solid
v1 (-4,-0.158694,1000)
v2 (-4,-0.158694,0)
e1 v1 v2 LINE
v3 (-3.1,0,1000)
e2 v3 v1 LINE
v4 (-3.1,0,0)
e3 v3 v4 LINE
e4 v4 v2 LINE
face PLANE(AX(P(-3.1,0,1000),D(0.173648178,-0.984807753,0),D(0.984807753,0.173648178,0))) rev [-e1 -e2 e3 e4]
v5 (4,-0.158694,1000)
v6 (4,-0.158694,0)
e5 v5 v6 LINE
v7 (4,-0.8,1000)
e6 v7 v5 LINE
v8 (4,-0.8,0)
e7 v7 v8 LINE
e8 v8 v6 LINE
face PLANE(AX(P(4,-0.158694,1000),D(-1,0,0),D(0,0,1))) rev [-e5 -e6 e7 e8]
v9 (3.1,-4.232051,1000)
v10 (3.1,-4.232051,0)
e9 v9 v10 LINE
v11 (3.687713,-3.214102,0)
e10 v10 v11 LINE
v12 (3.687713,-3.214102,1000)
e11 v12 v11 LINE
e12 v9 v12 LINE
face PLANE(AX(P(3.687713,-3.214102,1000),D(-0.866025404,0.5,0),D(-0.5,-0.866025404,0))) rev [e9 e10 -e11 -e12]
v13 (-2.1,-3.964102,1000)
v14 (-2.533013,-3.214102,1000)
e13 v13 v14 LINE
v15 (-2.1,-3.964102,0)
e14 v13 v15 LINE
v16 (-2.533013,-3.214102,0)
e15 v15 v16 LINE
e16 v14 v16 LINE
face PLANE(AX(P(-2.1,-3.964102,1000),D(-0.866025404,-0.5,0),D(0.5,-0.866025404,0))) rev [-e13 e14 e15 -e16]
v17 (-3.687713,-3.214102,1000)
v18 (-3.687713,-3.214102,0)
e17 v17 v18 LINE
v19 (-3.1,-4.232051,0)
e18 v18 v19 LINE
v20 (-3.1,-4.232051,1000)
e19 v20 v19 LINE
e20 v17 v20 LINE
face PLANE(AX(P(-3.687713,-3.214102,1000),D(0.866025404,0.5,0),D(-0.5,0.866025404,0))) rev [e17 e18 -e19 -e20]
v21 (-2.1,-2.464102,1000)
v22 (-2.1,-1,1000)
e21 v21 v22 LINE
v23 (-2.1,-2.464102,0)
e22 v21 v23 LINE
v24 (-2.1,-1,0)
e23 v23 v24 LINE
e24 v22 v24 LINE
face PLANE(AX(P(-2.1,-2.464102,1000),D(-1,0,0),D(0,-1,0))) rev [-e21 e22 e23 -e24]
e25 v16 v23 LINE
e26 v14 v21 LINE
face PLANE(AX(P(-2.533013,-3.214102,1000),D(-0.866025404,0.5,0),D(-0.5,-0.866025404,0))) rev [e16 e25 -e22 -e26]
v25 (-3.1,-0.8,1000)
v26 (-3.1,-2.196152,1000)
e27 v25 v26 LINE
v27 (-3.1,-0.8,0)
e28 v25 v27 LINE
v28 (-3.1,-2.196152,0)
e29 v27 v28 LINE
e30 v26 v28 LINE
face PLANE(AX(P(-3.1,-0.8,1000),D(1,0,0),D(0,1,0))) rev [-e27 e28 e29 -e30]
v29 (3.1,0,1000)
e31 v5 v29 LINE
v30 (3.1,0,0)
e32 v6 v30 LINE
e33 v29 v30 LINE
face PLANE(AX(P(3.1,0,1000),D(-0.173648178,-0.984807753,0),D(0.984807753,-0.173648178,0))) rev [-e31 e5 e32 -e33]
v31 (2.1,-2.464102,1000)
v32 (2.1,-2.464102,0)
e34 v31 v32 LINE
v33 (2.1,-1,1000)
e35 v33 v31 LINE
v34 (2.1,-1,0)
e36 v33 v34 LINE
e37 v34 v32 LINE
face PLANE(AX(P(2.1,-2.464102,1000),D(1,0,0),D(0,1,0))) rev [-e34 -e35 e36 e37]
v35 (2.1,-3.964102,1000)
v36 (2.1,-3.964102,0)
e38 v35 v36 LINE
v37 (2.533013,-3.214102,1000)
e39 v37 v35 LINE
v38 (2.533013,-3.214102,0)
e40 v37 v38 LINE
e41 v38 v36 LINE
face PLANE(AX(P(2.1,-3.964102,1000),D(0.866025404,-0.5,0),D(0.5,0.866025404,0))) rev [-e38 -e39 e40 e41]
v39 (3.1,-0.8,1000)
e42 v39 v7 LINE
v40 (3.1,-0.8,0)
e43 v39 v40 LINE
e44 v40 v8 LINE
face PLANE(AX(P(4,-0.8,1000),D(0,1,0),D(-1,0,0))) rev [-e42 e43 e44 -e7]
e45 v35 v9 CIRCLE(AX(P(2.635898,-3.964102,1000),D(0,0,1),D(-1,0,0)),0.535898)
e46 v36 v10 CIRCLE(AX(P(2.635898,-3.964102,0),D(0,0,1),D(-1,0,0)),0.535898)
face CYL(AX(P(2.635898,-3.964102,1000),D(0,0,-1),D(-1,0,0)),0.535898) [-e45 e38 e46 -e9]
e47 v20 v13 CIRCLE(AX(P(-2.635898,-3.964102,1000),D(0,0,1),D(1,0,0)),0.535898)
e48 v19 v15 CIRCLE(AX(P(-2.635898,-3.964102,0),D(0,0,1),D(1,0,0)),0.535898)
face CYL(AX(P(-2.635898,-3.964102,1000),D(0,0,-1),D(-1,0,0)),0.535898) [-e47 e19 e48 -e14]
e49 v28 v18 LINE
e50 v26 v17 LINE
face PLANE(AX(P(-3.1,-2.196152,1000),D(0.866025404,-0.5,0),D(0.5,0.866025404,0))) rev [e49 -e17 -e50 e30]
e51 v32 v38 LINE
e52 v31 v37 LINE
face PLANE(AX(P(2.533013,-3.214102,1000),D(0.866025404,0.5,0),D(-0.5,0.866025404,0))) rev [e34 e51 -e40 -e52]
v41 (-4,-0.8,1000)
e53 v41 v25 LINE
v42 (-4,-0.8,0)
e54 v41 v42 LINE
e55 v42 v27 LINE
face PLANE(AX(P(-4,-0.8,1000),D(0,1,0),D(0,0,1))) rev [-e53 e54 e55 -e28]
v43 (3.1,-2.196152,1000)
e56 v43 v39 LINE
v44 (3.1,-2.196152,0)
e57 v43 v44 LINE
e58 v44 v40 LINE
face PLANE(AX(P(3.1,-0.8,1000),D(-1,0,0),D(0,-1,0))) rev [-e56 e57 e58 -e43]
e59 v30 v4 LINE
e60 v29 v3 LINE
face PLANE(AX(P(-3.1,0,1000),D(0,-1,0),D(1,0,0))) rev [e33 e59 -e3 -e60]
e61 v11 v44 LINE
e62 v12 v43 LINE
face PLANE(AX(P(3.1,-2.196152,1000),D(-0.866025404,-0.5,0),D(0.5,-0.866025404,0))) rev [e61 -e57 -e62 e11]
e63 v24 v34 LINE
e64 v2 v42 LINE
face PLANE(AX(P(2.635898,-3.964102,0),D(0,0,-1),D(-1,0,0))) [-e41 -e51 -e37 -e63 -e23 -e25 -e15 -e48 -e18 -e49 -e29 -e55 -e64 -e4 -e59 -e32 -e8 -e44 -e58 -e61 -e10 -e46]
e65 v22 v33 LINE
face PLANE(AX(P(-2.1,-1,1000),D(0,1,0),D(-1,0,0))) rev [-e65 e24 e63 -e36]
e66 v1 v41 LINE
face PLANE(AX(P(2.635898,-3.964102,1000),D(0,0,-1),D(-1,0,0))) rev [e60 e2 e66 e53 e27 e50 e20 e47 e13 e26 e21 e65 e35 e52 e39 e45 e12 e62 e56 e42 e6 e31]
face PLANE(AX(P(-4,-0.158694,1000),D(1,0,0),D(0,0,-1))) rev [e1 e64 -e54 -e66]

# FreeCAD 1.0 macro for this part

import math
import FreeCAD as App
import Part
import Sketcher
Q = App.Units.Quantity

doc = App.newDocument("Part")
body = doc.addObject("PartDesign::Body", "Body")

sketch1 = body.newObject("Sketcher::SketchObject", "Sketch")
sketch1.AttachmentSupport = (doc.getObject("XY_Plane"), [""])
sketch1.MapMode = "FlatFace"
sketch1.addGeometry(Part.LineSegment(App.Vector(-3.1, 0, 0), App.Vector(-4, -0.158694, 0)), False)
sketch1.addGeometry(Part.LineSegment(App.Vector(-4, -0.158694, 0), App.Vector(-4, -0.8, 0)), False)
sketch1.addGeometry(Part.LineSegment(App.Vector(-4, -0.8, 0), App.Vector(-3.1, -0.8, 0)), False)
sketch1.addGeometry(Part.LineSegment(App.Vector(-3.1, -0.8, 0), App.Vector(-3.1, -2.196152, 0)), False)
sketch1.addGeometry(Part.LineSegment(App.Vector(-3.1, -2.196152, 0), App.Vector(-3.687713, -3.214102, 0)), False)
sketch1.addGeometry(Part.LineSegment(App.Vector(-3.687713, -3.214102, 0), App.Vector(-3.1, -4.232051, 0)), False)
sketch1.addGeometry(Part.ArcOfCircle(Part.Circle(App.Vector(-2.635898, -3.964102, 0), App.Vector(0, 0, 1), 0.535898), math.radians(-150), math.radians(0)), False)
sketch1.addGeometry(Part.LineSegment(App.Vector(-2.1, -3.964102, 0), App.Vector(-2.533013, -3.214102, 0)), False)
sketch1.addGeometry(Part.LineSegment(App.Vector(-2.533013, -3.214102, 0), App.Vector(-2.1, -2.464102, 0)), False)
sketch1.addGeometry(Part.LineSegment(App.Vector(-2.1, -2.464102, 0), App.Vector(-2.1, -1, 0)), False)
sketch1.addGeometry(Part.LineSegment(App.Vector(-2.1, -1, 0), App.Vector(2.1, -1, 0)), False)
sketch1.addGeometry(Part.LineSegment(App.Vector(2.1, -1, 0), App.Vector(2.1, -2.464102, 0)), False)
sketch1.addGeometry(Part.LineSegment(App.Vector(2.1, -2.464102, 0), App.Vector(2.533013, -3.214102, 0)), False)
sketch1.addGeometry(Part.LineSegment(App.Vector(2.533013, -3.214102, 0), App.Vector(2.1, -3.964102, 0)), False)
sketch1.addGeometry(Part.ArcOfCircle(Part.Circle(App.Vector(2.635898, -3.964102, 0), App.Vector(0, 0, 1), 0.535898), math.radians(-180), math.radians(-30)), False)
sketch1.addGeometry(Part.LineSegment(App.Vector(3.1, -4.232051, 0), App.Vector(3.687713, -3.214102, 0)), False)
sketch1.addGeometry(Part.LineSegment(App.Vector(3.687713, -3.214102, 0), App.Vector(3.1, -2.196152, 0)), False)
sketch1.addGeometry(Part.LineSegment(App.Vector(3.1, -2.196152, 0), App.Vector(3.1, -0.8, 0)), False)
sketch1.addGeometry(Part.LineSegment(App.Vector(3.1, -0.8, 0), App.Vector(4, -0.8, 0)), False)
sketch1.addGeometry(Part.LineSegment(App.Vector(4, -0.8, 0), App.Vector(4, -0.158694, 0)), False)
sketch1.addGeometry(Part.LineSegment(App.Vector(4, -0.158694, 0), App.Vector(3.1, 0, 0)), False)
sketch1.addGeometry(Part.LineSegment(App.Vector(3.1, 0, 0), App.Vector(-3.1, 0, 0)), False)
sketch1.addConstraint(Sketcher.Constraint("Coincident", 0, 2, 1, 1))
sketch1.addConstraint(Sketcher.Constraint("Coincident", 1, 2, 2, 1))
sketch1.addConstraint(Sketcher.Constraint("Coincident", 2, 2, 3, 1))
sketch1.addConstraint(Sketcher.Constraint("Coincident", 3, 2, 4, 1))
sketch1.addConstraint(Sketcher.Constraint("Coincident", 4, 2, 5, 1))
sketch1.addConstraint(Sketcher.Constraint("Tangent", 5, 2, 6, 1))
sketch1.addConstraint(Sketcher.Constraint("Coincident", 6, 2, 7, 1))
sketch1.addConstraint(Sketcher.Constraint("Coincident", 7, 2, 8, 1))
sketch1.addConstraint(Sketcher.Constraint("Coincident", 8, 2, 9, 1))
sketch1.addConstraint(Sketcher.Constraint("Coincident", 9, 2, 10, 1))
sketch1.addConstraint(Sketcher.Constraint("Coincident", 10, 2, 11, 1))
sketch1.addConstraint(Sketcher.Constraint("Coincident", 11, 2, 12, 1))
sketch1.addConstraint(Sketcher.Constraint("Coincident", 12, 2, 13, 1))
sketch1.addConstraint(Sketcher.Constraint("Coincident", 13, 2, 14, 1))
sketch1.addConstraint(Sketcher.Constraint("Tangent", 14, 2, 15, 1))
sketch1.addConstraint(Sketcher.Constraint("Coincident", 15, 2, 16, 1))
sketch1.addConstraint(Sketcher.Constraint("Coincident", 16, 2, 17, 1))
sketch1.addConstraint(Sketcher.Constraint("Coincident", 17, 2, 18, 1))
sketch1.addConstraint(Sketcher.Constraint("Coincident", 18, 2, 19, 1))
sketch1.addConstraint(Sketcher.Constraint("Coincident", 19, 2, 20, 1))
sketch1.addConstraint(Sketcher.Constraint("Coincident", 20, 2, 21, 1))
sketch1.addConstraint(Sketcher.Constraint("Coincident", 21, 2, 0, 1))
sketch1.addConstraint(Sketcher.Constraint("Vertical", 1))
sketch1.addConstraint(Sketcher.Constraint("Horizontal", 2))
sketch1.addConstraint(Sketcher.Constraint("Vertical", 3))
sketch1.addConstraint(Sketcher.Constraint("Vertical", 9))
sketch1.addConstraint(Sketcher.Constraint("Horizontal", 10))
sketch1.addConstraint(Sketcher.Constraint("Vertical", 11))
sketch1.addConstraint(Sketcher.Constraint("Vertical", 17))
sketch1.addConstraint(Sketcher.Constraint("Horizontal", 18))
sketch1.addConstraint(Sketcher.Constraint("Vertical", 19))
sketch1.addConstraint(Sketcher.Constraint("Horizontal", 21))
sketch1.addConstraint(Sketcher.Constraint("Equal", 6, 14))
sketch1.addConstraint(Sketcher.Constraint("Symmetric", 20, 2, 21, 2, -1, 1))
sketch1.addConstraint(Sketcher.Constraint("Symmetric", 6, 3, 14, 3, -2))
sketch1.addConstraint(Sketcher.Constraint("Symmetric", 8, 2, 11, 2, -2))
sketch1.addConstraint(Sketcher.Constraint("Symmetric", 7, 2, 12, 2, -2))
sketch1.addConstraint(Sketcher.Constraint("Symmetric", 4, 2, 15, 2, -2))
sketch1.addConstraint(Sketcher.Constraint("Symmetric", 3, 2, 16, 2, -2))
sketch1.addConstraint(Sketcher.Constraint("Symmetric", 1, 2, 18, 2, -2))
sketch1.addConstraint(Sketcher.Constraint("Parallel", 5, 7))
sketch1.addConstraint(Sketcher.Constraint("Parallel", 4, 8))
sketch1.addConstraint(Sketcher.Constraint("Parallel", 7, 12))
sketch1.addConstraint(Sketcher.Constraint("Parallel", 8, 13))
sketch1.addConstraint(Sketcher.Constraint("Horizontal", 14, 3, 6, 2))
sketch1.addConstraint(Sketcher.Constraint("Horizontal", 4, 2, 7, 2))
sketch1.addConstraint(Sketcher.Constraint("Horizontal", 0, 2, 19, 2))
sketch1.addConstraint(Sketcher.Constraint("Vertical", 3, 2, 5, 2))
sketch1.addConstraint(Sketcher.Constraint("Vertical", 6, 2, 8, 2))
sketch1.addConstraint(Sketcher.Constraint("Vertical", 17, 2, 20, 2))
sketch1.addConstraint(Sketcher.Constraint("Angle", 0, Q("-170 deg")))
sketch1.addConstraint(Sketcher.Constraint("Angle", 4, Q("-120 deg")))
sketch1.addConstraint(Sketcher.Constraint("DistanceX", 2, 1, 2, 2, Q("0.9 mm")))
sketch1.addConstraint(Sketcher.Constraint("DistanceX", 10, 1, 10, 2, Q("4.2 mm")))
sketch1.addConstraint(Sketcher.Constraint("DistanceX", 21, 2, 21, 1, Q("6.2 mm")))
sketch1.addConstraint(Sketcher.Constraint("DistanceY", 9, 2, -1, 1, Q("1 mm")))
sketch1.addConstraint(Sketcher.Constraint("DistanceY", 1, 2, -1, 1, Q("0.8 mm")))
sketch1.addConstraint(Sketcher.Constraint("DistanceY", 6, 2, 8, 2, Q("1.5 mm")))
sketch1.addConstraint(Sketcher.Constraint("DistanceY", 9, 1, 9, 2, Q("1.464102 mm")))
pad1 = body.newObject("PartDesign::Pad", "Pad")
pad1.Profile = sketch1
pad1.Length = 1000

doc.recompute()
